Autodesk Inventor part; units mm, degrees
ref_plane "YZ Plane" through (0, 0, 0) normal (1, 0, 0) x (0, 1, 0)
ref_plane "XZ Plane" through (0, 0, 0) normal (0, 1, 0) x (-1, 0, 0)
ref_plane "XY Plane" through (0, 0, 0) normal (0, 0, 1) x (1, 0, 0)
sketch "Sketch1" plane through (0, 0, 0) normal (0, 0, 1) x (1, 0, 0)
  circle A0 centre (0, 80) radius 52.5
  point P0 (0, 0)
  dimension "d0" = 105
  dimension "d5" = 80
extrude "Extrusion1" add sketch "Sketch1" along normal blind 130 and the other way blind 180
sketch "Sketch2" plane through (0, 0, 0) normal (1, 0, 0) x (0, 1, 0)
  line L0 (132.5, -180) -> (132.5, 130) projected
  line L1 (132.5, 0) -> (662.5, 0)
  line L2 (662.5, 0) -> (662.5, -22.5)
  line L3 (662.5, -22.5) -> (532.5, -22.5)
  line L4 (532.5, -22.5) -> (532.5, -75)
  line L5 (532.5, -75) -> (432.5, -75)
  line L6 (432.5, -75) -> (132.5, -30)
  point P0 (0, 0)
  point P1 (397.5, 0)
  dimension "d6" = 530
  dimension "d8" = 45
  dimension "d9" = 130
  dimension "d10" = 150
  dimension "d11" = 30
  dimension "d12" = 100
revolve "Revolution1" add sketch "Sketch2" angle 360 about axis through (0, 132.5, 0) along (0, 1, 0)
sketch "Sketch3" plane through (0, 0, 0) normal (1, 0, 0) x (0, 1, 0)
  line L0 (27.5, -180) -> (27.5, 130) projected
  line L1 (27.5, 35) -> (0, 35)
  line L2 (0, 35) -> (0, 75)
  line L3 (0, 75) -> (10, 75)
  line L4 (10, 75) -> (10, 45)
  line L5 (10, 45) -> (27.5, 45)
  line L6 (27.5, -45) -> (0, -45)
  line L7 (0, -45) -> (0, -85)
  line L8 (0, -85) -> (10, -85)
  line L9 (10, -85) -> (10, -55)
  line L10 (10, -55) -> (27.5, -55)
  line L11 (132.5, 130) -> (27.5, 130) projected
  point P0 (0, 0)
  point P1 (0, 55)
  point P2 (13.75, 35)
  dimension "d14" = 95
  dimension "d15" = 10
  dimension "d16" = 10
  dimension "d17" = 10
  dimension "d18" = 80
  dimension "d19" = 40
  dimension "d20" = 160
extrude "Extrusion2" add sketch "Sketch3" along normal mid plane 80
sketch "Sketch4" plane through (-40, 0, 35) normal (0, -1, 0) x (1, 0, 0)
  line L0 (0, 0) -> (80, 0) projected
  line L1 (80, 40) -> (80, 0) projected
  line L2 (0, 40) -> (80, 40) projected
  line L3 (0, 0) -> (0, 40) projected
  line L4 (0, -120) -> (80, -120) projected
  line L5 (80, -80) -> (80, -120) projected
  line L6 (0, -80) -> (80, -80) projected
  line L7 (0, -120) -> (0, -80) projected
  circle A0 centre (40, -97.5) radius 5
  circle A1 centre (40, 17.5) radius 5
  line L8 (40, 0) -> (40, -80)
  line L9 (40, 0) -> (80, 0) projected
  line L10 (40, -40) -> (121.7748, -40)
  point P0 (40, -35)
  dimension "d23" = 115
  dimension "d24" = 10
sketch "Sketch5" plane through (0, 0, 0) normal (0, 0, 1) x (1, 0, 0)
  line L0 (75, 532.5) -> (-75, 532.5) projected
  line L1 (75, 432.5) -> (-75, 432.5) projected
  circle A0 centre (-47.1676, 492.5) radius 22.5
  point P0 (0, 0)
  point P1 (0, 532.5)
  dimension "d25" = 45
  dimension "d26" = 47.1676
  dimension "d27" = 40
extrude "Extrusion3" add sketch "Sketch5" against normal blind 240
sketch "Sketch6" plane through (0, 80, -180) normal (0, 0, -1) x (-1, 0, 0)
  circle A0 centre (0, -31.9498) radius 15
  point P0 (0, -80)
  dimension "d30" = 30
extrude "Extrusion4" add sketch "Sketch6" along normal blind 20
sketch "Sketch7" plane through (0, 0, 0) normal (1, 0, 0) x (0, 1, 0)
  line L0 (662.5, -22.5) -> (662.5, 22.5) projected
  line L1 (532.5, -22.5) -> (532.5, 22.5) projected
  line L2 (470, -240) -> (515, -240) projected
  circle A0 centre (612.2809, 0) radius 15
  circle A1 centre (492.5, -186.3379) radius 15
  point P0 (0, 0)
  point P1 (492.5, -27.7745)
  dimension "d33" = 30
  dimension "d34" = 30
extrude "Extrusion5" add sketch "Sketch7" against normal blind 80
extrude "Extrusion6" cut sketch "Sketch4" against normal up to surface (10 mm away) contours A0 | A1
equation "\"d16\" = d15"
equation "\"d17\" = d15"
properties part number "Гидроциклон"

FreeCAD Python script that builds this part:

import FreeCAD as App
import Part
import Sketcher


def add_polygon(sketch, points):
    """Adds a closed chain of lines whose ends are joined by coincident constraints."""
    first, n = sketch.GeometryCount, len(points)
    for a, b in zip(points, points[1:] + points[:1]):
        sketch.addGeometry(Part.LineSegment(App.Vector(*a, 0), App.Vector(*b, 0)), False)
    for i in range(n):
        sketch.addConstraint(Sketcher.Constraint("Coincident", first + i, 2, first + (i + 1) % n, 1))

doc = App.newDocument("Part")
params = doc.addObject("Spreadsheet::Sheet", "Params")
for row, (alias, value) in enumerate([
    ("sketch1_diameter", "105 mm"),
    ("pad1_length", "130 mm"),
    ("pad1_length2", "180 mm"),
    ("sketch2_width", "100 mm"),
    ("sketch2_width2", "130 mm"),
    ("sketch2_width3", "530 mm"),
    ("sketch2_height", "30 mm"),
    ("sketch2_height2", "52.5 mm"),
    ("revolution_angle", "360 deg"),
    ("sketch3_width", "10 mm"),
    ("sketch3_height", "40 mm"),
    ("sketch3_width2", "17.5 mm"),
    ("pad2_length", "80 mm"),
    ("sketch4_diameter", "45 mm"),
    ("pad3_length", "240 mm"),
    ("sketch5_diameter", "30 mm"),
    ("pad4_length", "20 mm"),
    ("sketch6_diameter", "30 mm"),
    ("pad5_length", "80 mm"),
    ("sketch7_diameter", "10 mm"),
    ("pocket1_length", "10 mm"),
], start=1):
    params.set(f"A{row}", alias)
    params.set(f"B{row}", "=" + value)
    params.setAlias(f"B{row}", alias)

body = doc.addObject("PartDesign::Body", "Body")
body.AllowCompound = True

# Sketch on XY plane
sketch1 = body.newObject("Sketcher::SketchObject", "Sketch")
sketch1.AttachmentSupport = (doc.getObject("XY_Plane"), [""])
sketch1.MapMode = "FlatFace"
sketch1.addGeometry(Part.Circle(App.Vector(0, 80, 0), App.Vector(0, 0, 1), 52), False)
sketch1.addConstraint(Sketcher.Constraint("PointOnObject", 0, 3, -2))
sketch1.addConstraint(Sketcher.Constraint("Diameter", 0, 105.0))
sketch1.addConstraint(Sketcher.Constraint("DistanceY", -1, 1, 0, 3, 80.0))
sketch1.setExpression("Constraints[1]", "Params.sketch1_diameter")
pad1 = body.newObject("PartDesign::Pad", "Pad")
pad1.Profile = sketch1
pad1.Type = "TwoLengths"
pad1.setExpression("Length", "Params.pad1_length")
pad1.setExpression("Length2", "Params.pad1_length2")

# Sketch on YZ plane
sketch2 = body.newObject("Sketcher::SketchObject", "Sketch001")
sketch2.AttachmentSupport = (doc.getObject("YZ_Plane"), [""])
sketch2.MapMode = "FlatFace"
add_polygon(sketch2, [(132, 0), (132, -30), (432, -75), (532, -75), (532, -22), (662, -22), (662, 0)])  # lines 0-6
sketch2.addConstraint(Sketcher.Constraint("Vertical", 0))
sketch2.addConstraint(Sketcher.Constraint("Horizontal", 2))
sketch2.addConstraint(Sketcher.Constraint("Vertical", 3))
sketch2.addConstraint(Sketcher.Constraint("Horizontal", 4))
sketch2.addConstraint(Sketcher.Constraint("Vertical", 5))
sketch2.addConstraint(Sketcher.Constraint("Horizontal", 6))
sketch2.addConstraint(Sketcher.Constraint("PointOnObject", 5, 2, -1))
sketch2.addConstraint(Sketcher.Constraint("DistanceX", 2, 1, 2, 2, 100.0))
sketch2.addConstraint(Sketcher.Constraint("DistanceX", 4, 1, 4, 2, 130.0))
sketch2.addConstraint(Sketcher.Constraint("DistanceX", 6, 2, 6, 1, 530.0))
sketch2.addConstraint(Sketcher.Constraint("DistanceY", 0, 2, 0, 1, 30.0))
sketch2.addConstraint(Sketcher.Constraint("DistanceY", 1, 2, 0, 2, 45.0))
sketch2.addConstraint(Sketcher.Constraint("DistanceY", 3, 1, 3, 2, 52.5))
sketch2.addConstraint(Sketcher.Constraint("DistanceX", -1, 1, 0, 2, 132.5))
sketch2.setExpression("Constraints[14]", "Params.sketch2_width")
sketch2.setExpression("Constraints[15]", "Params.sketch2_width2")
sketch2.setExpression("Constraints[16]", "Params.sketch2_width3")
sketch2.setExpression("Constraints[17]", "Params.sketch2_height")
sketch2.setExpression("Constraints[19]", "Params.sketch2_height2")
revolution = body.newObject("PartDesign::Revolution", "Revolution")
revolution.Profile = sketch2
revolution.ReferenceAxis = (sketch2, ["H_Axis"])
revolution.setExpression("Angle", "Params.revolution_angle")

# Sketch on YZ plane
sketch3 = body.newObject("Sketcher::SketchObject", "Sketch002")
sketch3.AttachmentSupport = (doc.getObject("YZ_Plane"), [""])
sketch3.MapMode = "FlatFace"
add_polygon(sketch3, [(10, -55), (28, -55), (28, -45), (0, -45), (0, -85), (10, -85)])  # lines 0-5
add_polygon(sketch3, [(0, 35), (28, 35), (28, 45), (10, 45), (10, 75), (0, 75)])  # lines 6-11
sketch3.addConstraint(Sketcher.Constraint("Horizontal", 0))
sketch3.addConstraint(Sketcher.Constraint("Vertical", 1))
sketch3.addConstraint(Sketcher.Constraint("Horizontal", 2))
sketch3.addConstraint(Sketcher.Constraint("Vertical", 3))
sketch3.addConstraint(Sketcher.Constraint("Horizontal", 4))
sketch3.addConstraint(Sketcher.Constraint("Vertical", 5))
sketch3.addConstraint(Sketcher.Constraint("Horizontal", 6))
sketch3.addConstraint(Sketcher.Constraint("Vertical", 7))
sketch3.addConstraint(Sketcher.Constraint("Horizontal", 8))
sketch3.addConstraint(Sketcher.Constraint("Vertical", 9))
sketch3.addConstraint(Sketcher.Constraint("Horizontal", 10))
sketch3.addConstraint(Sketcher.Constraint("Vertical", 11))
sketch3.addConstraint(Sketcher.Constraint("Symmetric", 1, 2, 7, 2, -1))
sketch3.addConstraint(Sketcher.Constraint("PointOnObject", 2, 2, -2))
sketch3.addConstraint(Sketcher.Constraint("PointOnObject", 10, 2, -2))
sketch3.addConstraint(Sketcher.Constraint("Vertical", 5, 2, 8, 2))
sketch3.addConstraint(Sketcher.Constraint("Equal", 10, 1))
sketch3.addConstraint(Sketcher.Constraint("Equal", 1, 7))
sketch3.addConstraint(Sketcher.Constraint("Equal", 5, 9))
sketch3.addConstraint(Sketcher.Constraint("DistanceX", 4, 1, 4, 2, 10.0))
sketch3.addConstraint(Sketcher.Constraint("DistanceY", 3, 2, 3, 1, 40.0))
sketch3.addConstraint(Sketcher.Constraint("DistanceY", 1, 2, 6, 2, 80.0))
sketch3.addConstraint(Sketcher.Constraint("DistanceX", 0, 1, 0, 2, 17.5))
sketch3.setExpression("Constraints[31]", "Params.sketch3_width")
sketch3.setExpression("Constraints[32]", "Params.sketch3_height")
sketch3.setExpression("Constraints[34]", "Params.sketch3_width2")
pad2 = body.newObject("PartDesign::Pad", "Pad001")
pad2.Profile = sketch3
pad2.setExpression("Length", "Params.pad2_length")
pad2.Midplane = True

# Sketch on XY plane
sketch4 = body.newObject("Sketcher::SketchObject", "Sketch003")
sketch4.AttachmentSupport = (doc.getObject("XY_Plane"), [""])
sketch4.MapMode = "FlatFace"
sketch4.addGeometry(Part.Circle(App.Vector(-47, 492, 0), App.Vector(0, 0, 1), 22), False)
sketch4.addConstraint(Sketcher.Constraint("Diameter", 0, 45.0))
sketch4.addConstraint(Sketcher.Constraint("DistanceX", 0, 3, -1, 1, 47.1676))
sketch4.addConstraint(Sketcher.Constraint("DistanceY", -1, 1, 0, 3, 492.5))
sketch4.setExpression("Constraints[0]", "Params.sketch4_diameter")
pad3 = body.newObject("PartDesign::Pad", "Pad002")
pad3.Profile = sketch4
pad3.setExpression("Length", "Params.pad3_length")
pad3.Reversed = True

# Sketch on XY plane
sketch5 = body.newObject("Sketcher::SketchObject", "Sketch004")
sketch5.AttachmentSupport = (doc.getObject("XY_Plane"), [""])
sketch5.MapMode = "FlatFace"
sketch5.AttachmentOffset = App.Placement(App.Vector(0, 0, -180), App.Rotation())
sketch5.addGeometry(Part.Circle(App.Vector(0, 48, 0), App.Vector(0, 0, 1), 15), False)
sketch5.addConstraint(Sketcher.Constraint("PointOnObject", 0, 3, -2))
sketch5.addConstraint(Sketcher.Constraint("Diameter", 0, 30.0))
sketch5.addConstraint(Sketcher.Constraint("DistanceY", -1, 1, 0, 3, 48.0502))
sketch5.setExpression("Constraints[1]", "Params.sketch5_diameter")
pad4 = body.newObject("PartDesign::Pad", "Pad003")
pad4.Profile = sketch5
pad4.setExpression("Length", "Params.pad4_length")
pad4.Reversed = True

# Sketch on YZ plane
sketch6 = body.newObject("Sketcher::SketchObject", "Sketch005")
sketch6.AttachmentSupport = (doc.getObject("YZ_Plane"), [""])
sketch6.MapMode = "FlatFace"
sketch6.addGeometry(Part.Circle(App.Vector(612, 0, 0), App.Vector(0, 0, 1), 15), False)
sketch6.addGeometry(Part.Circle(App.Vector(492, -186, 0), App.Vector(0, 0, 1), 15), False)
sketch6.addConstraint(Sketcher.Constraint("Equal", 0, 1))
sketch6.addConstraint(Sketcher.Constraint("PointOnObject", 0, 3, -1))
sketch6.addConstraint(Sketcher.Constraint("Diameter", 0, 30.0))
sketch6.addConstraint(Sketcher.Constraint("DistanceX", -1, 1, 1, 3, 492.5))
sketch6.addConstraint(Sketcher.Constraint("DistanceX", -1, 1, 0, 3, 612.281))
sketch6.addConstraint(Sketcher.Constraint("DistanceY", 1, 3, -1, 1, 186.338))
sketch6.setExpression("Constraints[2]", "Params.sketch6_diameter")
pad5 = body.newObject("PartDesign::Pad", "Pad004")
pad5.Profile = sketch6
pad5.setExpression("Length", "Params.pad5_length")
pad5.Reversed = True

# Sketch on XZ plane
sketch7 = body.newObject("Sketcher::SketchObject", "Sketch006")
sketch7.AttachmentSupport = (doc.getObject("XZ_Plane"), [""])
sketch7.MapMode = "FlatFace"
sketch7.addGeometry(Part.Circle(App.Vector(0, -62, 0), App.Vector(0, 0, 1), 5), False)
sketch7.addGeometry(Part.Circle(App.Vector(0, 52, 0), App.Vector(0, 0, 1), 5), False)
sketch7.addConstraint(Sketcher.Constraint("Equal", 0, 1))
sketch7.addConstraint(Sketcher.Constraint("PointOnObject", 0, 3, -2))
sketch7.addConstraint(Sketcher.Constraint("PointOnObject", 1, 3, -2))
sketch7.addConstraint(Sketcher.Constraint("Diameter", 0, 10.0))
sketch7.addConstraint(Sketcher.Constraint("DistanceY", 0, 3, 1, 3, 115.0))
sketch7.addConstraint(Sketcher.Constraint("DistanceY", 0, 3, -1, 1, 62.5))
sketch7.setExpression("Constraints[3]", "Params.sketch7_diameter")
pocket1 = body.newObject("PartDesign::Pocket", "Pocket")
pocket1.Profile = sketch7
pocket1.setExpression("Length", "Params.pocket1_length")

doc.recompute()
